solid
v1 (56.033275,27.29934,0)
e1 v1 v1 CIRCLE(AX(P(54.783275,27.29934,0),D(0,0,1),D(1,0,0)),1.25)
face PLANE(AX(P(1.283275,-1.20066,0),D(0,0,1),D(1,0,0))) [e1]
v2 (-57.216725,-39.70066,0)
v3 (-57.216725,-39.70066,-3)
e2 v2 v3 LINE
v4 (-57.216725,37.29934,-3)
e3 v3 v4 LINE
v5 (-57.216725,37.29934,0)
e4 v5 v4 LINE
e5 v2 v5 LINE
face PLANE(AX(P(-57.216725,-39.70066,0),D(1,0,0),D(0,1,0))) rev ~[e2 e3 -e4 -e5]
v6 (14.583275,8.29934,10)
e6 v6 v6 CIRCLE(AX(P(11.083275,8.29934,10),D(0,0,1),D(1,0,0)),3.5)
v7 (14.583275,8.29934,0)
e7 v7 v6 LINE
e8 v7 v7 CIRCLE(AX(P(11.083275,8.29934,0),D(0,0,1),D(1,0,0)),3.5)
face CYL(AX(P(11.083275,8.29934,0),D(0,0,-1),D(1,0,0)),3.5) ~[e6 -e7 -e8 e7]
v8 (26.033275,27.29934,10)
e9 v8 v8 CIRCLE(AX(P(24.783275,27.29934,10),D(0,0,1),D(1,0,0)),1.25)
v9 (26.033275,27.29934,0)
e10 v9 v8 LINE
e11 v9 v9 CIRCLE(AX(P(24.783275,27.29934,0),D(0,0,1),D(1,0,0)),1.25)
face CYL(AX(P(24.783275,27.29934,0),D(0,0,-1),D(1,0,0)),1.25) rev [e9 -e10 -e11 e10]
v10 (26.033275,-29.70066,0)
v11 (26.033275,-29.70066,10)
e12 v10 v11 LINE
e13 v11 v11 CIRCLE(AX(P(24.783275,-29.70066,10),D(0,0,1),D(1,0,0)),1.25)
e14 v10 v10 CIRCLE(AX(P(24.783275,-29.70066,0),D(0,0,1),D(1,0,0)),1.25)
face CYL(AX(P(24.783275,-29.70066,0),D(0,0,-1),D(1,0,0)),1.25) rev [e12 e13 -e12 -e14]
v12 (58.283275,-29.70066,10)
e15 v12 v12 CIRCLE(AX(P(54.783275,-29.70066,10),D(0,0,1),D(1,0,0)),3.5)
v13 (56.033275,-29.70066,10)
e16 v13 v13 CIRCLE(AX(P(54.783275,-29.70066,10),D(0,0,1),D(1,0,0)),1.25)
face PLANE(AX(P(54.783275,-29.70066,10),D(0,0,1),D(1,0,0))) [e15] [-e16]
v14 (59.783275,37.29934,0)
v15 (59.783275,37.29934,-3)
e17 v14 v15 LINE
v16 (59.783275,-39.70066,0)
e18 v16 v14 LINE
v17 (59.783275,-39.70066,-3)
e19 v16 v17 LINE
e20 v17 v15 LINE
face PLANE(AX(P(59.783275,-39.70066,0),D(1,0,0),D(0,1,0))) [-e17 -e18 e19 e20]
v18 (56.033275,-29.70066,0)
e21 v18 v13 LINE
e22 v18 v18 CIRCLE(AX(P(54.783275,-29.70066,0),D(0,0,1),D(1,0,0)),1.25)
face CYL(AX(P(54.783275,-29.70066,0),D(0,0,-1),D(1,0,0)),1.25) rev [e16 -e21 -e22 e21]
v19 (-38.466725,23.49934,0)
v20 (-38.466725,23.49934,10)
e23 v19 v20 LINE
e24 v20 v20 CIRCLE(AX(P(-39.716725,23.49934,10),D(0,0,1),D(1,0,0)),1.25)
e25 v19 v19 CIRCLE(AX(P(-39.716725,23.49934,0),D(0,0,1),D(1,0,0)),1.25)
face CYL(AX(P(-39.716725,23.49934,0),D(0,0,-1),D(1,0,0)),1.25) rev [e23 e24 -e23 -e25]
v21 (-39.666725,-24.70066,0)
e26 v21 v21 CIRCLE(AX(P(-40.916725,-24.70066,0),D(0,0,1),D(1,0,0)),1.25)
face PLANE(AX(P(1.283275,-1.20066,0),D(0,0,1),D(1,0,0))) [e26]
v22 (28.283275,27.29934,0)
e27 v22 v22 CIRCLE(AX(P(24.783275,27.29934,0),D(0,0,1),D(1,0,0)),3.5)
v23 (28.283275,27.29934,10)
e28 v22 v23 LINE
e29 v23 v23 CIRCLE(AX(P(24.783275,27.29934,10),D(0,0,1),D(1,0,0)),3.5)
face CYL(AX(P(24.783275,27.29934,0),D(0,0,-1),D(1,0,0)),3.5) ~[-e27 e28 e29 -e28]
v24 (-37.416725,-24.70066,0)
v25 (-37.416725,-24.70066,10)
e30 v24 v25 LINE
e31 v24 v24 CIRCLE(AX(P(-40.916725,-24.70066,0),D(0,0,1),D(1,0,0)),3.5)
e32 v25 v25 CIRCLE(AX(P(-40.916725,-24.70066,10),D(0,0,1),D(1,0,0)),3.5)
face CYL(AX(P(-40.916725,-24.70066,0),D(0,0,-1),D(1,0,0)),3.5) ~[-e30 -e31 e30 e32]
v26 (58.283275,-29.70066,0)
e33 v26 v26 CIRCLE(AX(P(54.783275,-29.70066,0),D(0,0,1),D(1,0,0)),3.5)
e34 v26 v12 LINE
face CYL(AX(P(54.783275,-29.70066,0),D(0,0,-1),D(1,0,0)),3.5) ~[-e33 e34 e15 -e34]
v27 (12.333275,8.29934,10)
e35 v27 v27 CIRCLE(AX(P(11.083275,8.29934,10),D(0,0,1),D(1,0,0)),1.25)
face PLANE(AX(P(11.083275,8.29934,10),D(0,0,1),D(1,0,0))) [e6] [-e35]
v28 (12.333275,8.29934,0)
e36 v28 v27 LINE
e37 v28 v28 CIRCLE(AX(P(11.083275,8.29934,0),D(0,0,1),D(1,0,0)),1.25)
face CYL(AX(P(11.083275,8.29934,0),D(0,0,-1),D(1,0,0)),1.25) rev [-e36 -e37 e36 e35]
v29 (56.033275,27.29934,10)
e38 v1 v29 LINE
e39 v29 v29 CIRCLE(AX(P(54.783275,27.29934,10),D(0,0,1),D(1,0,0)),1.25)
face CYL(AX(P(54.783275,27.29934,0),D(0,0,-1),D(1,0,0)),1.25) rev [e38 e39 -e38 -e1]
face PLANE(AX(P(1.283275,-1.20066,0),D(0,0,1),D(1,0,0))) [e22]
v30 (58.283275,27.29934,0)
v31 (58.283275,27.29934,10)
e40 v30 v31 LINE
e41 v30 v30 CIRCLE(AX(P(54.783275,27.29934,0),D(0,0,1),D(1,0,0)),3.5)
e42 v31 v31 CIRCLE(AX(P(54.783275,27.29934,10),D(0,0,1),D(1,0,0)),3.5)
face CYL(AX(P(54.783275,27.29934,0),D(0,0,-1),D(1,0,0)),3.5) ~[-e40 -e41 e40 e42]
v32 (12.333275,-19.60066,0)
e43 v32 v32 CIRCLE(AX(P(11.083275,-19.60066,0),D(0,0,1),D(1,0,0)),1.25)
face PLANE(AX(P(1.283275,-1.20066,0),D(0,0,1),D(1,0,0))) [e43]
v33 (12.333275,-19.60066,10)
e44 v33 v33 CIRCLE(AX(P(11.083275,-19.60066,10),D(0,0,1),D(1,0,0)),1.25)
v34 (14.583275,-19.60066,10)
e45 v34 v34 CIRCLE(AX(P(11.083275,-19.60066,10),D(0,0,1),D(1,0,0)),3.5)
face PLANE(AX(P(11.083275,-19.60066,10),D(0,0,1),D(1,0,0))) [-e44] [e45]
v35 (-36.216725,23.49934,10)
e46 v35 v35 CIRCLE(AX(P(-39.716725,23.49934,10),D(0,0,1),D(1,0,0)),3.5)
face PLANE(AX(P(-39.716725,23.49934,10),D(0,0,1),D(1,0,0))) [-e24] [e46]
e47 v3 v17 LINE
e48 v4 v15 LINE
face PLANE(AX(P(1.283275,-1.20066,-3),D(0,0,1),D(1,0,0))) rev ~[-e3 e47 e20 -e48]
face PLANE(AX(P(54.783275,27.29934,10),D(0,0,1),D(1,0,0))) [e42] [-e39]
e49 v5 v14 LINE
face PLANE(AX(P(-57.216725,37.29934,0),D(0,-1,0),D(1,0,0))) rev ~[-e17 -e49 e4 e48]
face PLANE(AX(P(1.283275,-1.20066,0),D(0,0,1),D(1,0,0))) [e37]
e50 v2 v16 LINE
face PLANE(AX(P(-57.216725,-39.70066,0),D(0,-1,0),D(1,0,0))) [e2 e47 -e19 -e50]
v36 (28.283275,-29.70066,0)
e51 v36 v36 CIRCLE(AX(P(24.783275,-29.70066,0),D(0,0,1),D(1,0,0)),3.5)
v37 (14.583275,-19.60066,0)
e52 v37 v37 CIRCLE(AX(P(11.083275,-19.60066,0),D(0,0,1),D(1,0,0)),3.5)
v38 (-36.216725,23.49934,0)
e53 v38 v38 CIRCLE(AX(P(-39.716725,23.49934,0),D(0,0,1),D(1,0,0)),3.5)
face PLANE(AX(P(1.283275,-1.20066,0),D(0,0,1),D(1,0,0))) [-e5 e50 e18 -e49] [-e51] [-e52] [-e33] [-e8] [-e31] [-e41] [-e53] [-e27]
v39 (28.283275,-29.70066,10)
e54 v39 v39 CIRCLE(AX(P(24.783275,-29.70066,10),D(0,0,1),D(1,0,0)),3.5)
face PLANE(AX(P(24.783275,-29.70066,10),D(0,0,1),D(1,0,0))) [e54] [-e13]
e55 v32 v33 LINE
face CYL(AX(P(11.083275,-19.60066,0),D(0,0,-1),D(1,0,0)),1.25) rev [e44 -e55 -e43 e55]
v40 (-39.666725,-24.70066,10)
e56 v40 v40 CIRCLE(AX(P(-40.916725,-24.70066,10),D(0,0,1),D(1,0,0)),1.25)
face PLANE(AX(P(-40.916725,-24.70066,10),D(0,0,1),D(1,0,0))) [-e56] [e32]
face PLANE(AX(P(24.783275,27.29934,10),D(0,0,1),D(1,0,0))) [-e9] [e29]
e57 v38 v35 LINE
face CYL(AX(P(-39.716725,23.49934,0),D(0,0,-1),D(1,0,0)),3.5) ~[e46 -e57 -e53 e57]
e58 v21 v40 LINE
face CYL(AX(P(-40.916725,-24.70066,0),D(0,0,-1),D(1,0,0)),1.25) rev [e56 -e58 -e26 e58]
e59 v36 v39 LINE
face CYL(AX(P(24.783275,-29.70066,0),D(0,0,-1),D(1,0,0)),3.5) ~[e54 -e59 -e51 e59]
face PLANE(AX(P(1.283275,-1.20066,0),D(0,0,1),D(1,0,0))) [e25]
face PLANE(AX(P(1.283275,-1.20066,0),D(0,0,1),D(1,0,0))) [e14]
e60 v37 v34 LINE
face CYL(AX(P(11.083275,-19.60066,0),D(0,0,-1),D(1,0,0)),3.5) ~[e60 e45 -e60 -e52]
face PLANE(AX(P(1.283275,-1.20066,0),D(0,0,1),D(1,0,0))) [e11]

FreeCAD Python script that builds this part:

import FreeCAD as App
import Part
import Sketcher

doc = App.newDocument("Part")
body = doc.addObject("PartDesign::Body", "Body")

# Sketch on XY plane
sketch1 = doc.addObject("Sketcher::SketchObject", "Sketch")
body.addObject(sketch1)
sketch1.AttachmentSupport = (doc.XY_Plane, [""])
sketch1.MapMode = "FlatFace"
sketch1.addGeometry([
    Part.LineSegment(App.Vector(-57.216725, 37.29934, 0), App.Vector(-57.216725, -39.70066, 0)),
    Part.LineSegment(App.Vector(-57.216725, -39.70066, 0), App.Vector(59.783275, -39.70066, 0)),
    Part.LineSegment(App.Vector(59.783275, -39.70066, 0), App.Vector(59.783275, 37.29934, 0)),
    Part.LineSegment(App.Vector(59.783275, 37.29934, 0), App.Vector(-57.216725, 37.29934, 0)),
], False)
sketch1.addConstraint([
    Sketcher.Constraint("Coincident", 0, 2, 1, 1),
    Sketcher.Constraint("Coincident", 1, 2, 2, 1),
    Sketcher.Constraint("Coincident", 2, 2, 3, 1),
    Sketcher.Constraint("Coincident", 3, 2, 0, 1),
    Sketcher.Constraint("Vertical", 0),
    Sketcher.Constraint("Horizontal", 1),
    Sketcher.Constraint("Vertical", 2),
    Sketcher.Constraint("Horizontal", 3),
    Sketcher.Constraint("DistanceX", 1, 1, 1, 2, 117.0),
    Sketcher.Constraint("DistanceY", 0, 2, 0, 1, 77.0),
    Sketcher.Constraint("DistanceY", 0, 2, -1, 1, 39.70066),
    Sketcher.Constraint("DistanceX", 0, 2, -1, 1, 57.216725),
])
pad1 = doc.addObject("PartDesign::Pad", "Pad")
body.addObject(pad1)
pad1.Profile = sketch1
pad1.Length = 3
pad1.Reversed = True

# Sketch on XY plane
sketch2 = doc.addObject("Sketcher::SketchObject", "Sketch001")
body.addObject(sketch2)
sketch2.AttachmentSupport = (doc.XY_Plane, [""])
sketch2.MapMode = "FlatFace"
sketch2.addGeometry([
    Part.Circle(App.Vector(-39.716725, 23.49934, 0), App.Vector(0, 0, 1), 3.5),  # 0
    Part.Circle(App.Vector(-39.716725, 23.49934, 0), App.Vector(0, 0, 1), 1.25),  # 1
    Part.Circle(App.Vector(11.083275, 8.29934, 0), App.Vector(0, 0, 1), 3.5),  # 2
    Part.Circle(App.Vector(11.083275, 8.29934, 0), App.Vector(0, 0, 1), 1.25),  # 3
    Part.Circle(App.Vector(11.083275, -19.60066, 0), App.Vector(0, 0, 1), 3.5),  # 4
    Part.Circle(App.Vector(11.083275, -19.60066, 0), App.Vector(0, 0, 1), 1.25),  # 5
    Part.Circle(App.Vector(-40.916725, -24.70066, 0), App.Vector(0, 0, 1), 3.5),  # 6
    Part.Circle(App.Vector(-40.916725, -24.70066, 0), App.Vector(0, 0, 1), 1.25),  # 7
    Part.Circle(App.Vector(24.783275, -29.70066, 0), App.Vector(0, 0, 1), 3.5),  # 8
    Part.Circle(App.Vector(24.783275, -29.70066, 0), App.Vector(0, 0, 1), 1.25),  # 9
    Part.Circle(App.Vector(54.783275, -29.70066, 0), App.Vector(0, 0, 1), 3.5),  # 10
    Part.Circle(App.Vector(54.783275, -29.70066, 0), App.Vector(0, 0, 1), 1.25),  # 11
    Part.Circle(App.Vector(24.783275, 27.29934, 0), App.Vector(0, 0, 1), 3.5),  # 12
    Part.Circle(App.Vector(24.783275, 27.29934, 0), App.Vector(0, 0, 1), 1.25),  # 13
    Part.Circle(App.Vector(54.783275, 27.29934, 0), App.Vector(0, 0, 1), 3.5),  # 14
    Part.Circle(App.Vector(54.783275, 27.29934, 0), App.Vector(0, 0, 1), 1.25),  # 15
], False)
sketch2.addConstraint([
    Sketcher.Constraint("Coincident", 1, 3, 0, 3),
    Sketcher.Constraint("Coincident", 3, 3, 2, 3),
    Sketcher.Constraint("Coincident", 5, 3, 4, 3),
    Sketcher.Constraint("Coincident", 7, 3, 6, 3),
    Sketcher.Constraint("Coincident", 9, 3, 8, 3),
    Sketcher.Constraint("Coincident", 11, 3, 10, 3),
    Sketcher.Constraint("Coincident", 13, 3, 12, 3),
    Sketcher.Constraint("Coincident", 15, 3, 14, 3),
    Sketcher.Constraint("Equal", 0, 2),
    Sketcher.Constraint("Equal", 1, 3),
    Sketcher.Constraint("Equal", 2, 4),
    Sketcher.Constraint("Equal", 3, 5),
    Sketcher.Constraint("Equal", 4, 6),
    Sketcher.Constraint("Equal", 5, 7),
    Sketcher.Constraint("Equal", 6, 8),
    Sketcher.Constraint("Equal", 7, 9),
    Sketcher.Constraint("Equal", 8, 10),
    Sketcher.Constraint("Equal", 9, 11),
    Sketcher.Constraint("Equal", 10, 12),
    Sketcher.Constraint("Equal", 11, 13),
    Sketcher.Constraint("Equal", 12, 14),
    Sketcher.Constraint("Equal", 13, 15),
    Sketcher.Constraint("Horizontal", 9, 3, 10, 3),
    Sketcher.Constraint("Horizontal", 13, 3, 14, 3),
    Sketcher.Constraint("Vertical", 3, 3, 4, 3),
    Sketcher.Constraint("Vertical", 9, 3, 12, 3),
    Sketcher.Constraint("Vertical", 11, 3, 14, 3),
    Sketcher.Constraint("Diameter", 0, 7.0),
    Sketcher.Constraint("Diameter", 1, 2.5),
    Sketcher.Constraint("DistanceX", 6, 3, 4, 3, 52.0),
    Sketcher.Constraint("DistanceY", 6, 3, 2, 3, 33.0),
    Sketcher.Constraint("DistanceY", 8, 3, 2, 3, 38.0),
    Sketcher.Constraint("DistanceX", 8, 3, 10, 3, 30.0),
    Sketcher.Constraint("DistanceY", 2, 3, 12, 3, 19.0),
    Sketcher.Constraint("DistanceX", 0, 3, 2, 3, 50.8),
    Sketcher.Constraint("DistanceY", 2, 3, 0, 3, 15.2),
    Sketcher.Constraint("DistanceY", 4, 3, 2, 3, 27.9),
    Sketcher.Constraint("DistanceX", 4, 3, 8, 3, 13.7),
    Sketcher.Constraint("DistanceY", -1, 1, 0, 3, 23.49934),
    Sketcher.Constraint("DistanceX", 0, 3, -1, 1, 39.716725),
])
pad2 = doc.addObject("PartDesign::Pad", "Pad001")
body.addObject(pad2)
pad2.Profile = sketch2
pad2.Length = 10

doc.recompute()
